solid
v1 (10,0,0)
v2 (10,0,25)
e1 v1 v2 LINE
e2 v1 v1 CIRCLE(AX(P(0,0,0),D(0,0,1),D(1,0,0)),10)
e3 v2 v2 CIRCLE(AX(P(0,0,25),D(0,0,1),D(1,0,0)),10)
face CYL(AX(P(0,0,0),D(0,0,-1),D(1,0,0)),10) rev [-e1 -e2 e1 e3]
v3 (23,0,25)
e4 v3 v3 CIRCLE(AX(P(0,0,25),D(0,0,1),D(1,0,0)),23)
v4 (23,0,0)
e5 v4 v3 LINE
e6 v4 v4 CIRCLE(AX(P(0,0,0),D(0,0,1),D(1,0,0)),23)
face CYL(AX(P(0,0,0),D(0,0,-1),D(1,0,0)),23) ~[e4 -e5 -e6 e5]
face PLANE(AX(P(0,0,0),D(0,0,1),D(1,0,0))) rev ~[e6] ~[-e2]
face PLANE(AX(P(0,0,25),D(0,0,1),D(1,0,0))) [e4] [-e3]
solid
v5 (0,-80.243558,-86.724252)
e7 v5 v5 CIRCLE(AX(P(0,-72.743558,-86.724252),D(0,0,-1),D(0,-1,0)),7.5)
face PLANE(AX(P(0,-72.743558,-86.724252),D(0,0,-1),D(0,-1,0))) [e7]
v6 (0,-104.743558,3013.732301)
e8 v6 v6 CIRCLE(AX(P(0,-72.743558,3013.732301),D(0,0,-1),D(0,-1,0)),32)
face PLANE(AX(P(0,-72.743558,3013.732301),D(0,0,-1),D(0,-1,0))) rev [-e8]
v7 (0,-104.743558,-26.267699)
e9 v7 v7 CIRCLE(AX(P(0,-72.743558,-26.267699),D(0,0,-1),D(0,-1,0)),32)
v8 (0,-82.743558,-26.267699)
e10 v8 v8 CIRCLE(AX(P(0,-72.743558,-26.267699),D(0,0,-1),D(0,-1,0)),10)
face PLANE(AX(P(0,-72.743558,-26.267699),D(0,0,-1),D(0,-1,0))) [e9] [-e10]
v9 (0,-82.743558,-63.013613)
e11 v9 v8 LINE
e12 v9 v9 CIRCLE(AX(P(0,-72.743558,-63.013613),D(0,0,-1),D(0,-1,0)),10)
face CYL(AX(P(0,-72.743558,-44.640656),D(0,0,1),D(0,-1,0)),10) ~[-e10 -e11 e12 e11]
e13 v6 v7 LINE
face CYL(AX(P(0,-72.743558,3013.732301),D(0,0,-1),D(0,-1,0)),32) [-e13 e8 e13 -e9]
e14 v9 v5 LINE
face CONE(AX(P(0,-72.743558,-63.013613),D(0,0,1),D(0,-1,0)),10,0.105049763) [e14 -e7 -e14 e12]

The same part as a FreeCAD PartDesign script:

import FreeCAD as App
import Part
import Sketcher

V = App.Vector
Q = App.Units.Quantity

doc = App.newDocument("Part")
body = doc.addObject("PartDesign::Body", "Body")

# Sketch on XY plane
sketch1 = body.newObject("Sketcher::SketchObject", "Sketch")
sketch1.AttachmentSupport = (doc.getObject("XY_Plane"), [""])
sketch1.MapMode = "FlatFace"
sketch1.addGeometry(Part.Circle(V(0, 0, 0), V(0, 0, 1), 23), False)
sketch1.addGeometry(Part.Circle(V(0, 0, 0), V(0, 0, 1), 10), False)
sketch1.addConstraint(Sketcher.Constraint("Coincident", 0, 3, -1, 1))
sketch1.addConstraint(Sketcher.Constraint("Coincident", 1, 3, -1, 1))
sketch1.addConstraint(Sketcher.Constraint("Diameter", 0, Q("46 mm")))
sketch1.addConstraint(Sketcher.Constraint("Diameter", 1, Q("20 mm")))
pad1 = body.newObject("PartDesign::Pad", "Pad")
pad1.Profile = sketch1
pad1.Length = 25
body2 = doc.addObject("PartDesign::Body", "Body001")

# Sketch on YZ plane
sketch2 = body2.newObject("Sketcher::SketchObject", "Sketch001")
sketch2.AttachmentSupport = (doc.getObject("YZ_Plane001"), [""])
sketch2.MapMode = "FlatFace"
sketch2.addGeometry(Part.LineSegment(V(-83, -26, 0), V(-83, -63, 0)), False)
sketch2.addGeometry(Part.LineSegment(V(-83, -63, 0), V(-80, -87, 0)), False)
sketch2.addGeometry(Part.LineSegment(V(-80, -87, 0), V(-73, -87, 0)), False)
sketch2.addGeometry(Part.LineSegment(V(-73, -87, 0), V(-73, 3014, 0)), False)
sketch2.addGeometry(Part.LineSegment(V(-73, 3014, 0), V(-105, 3014, 0)), False)
sketch2.addGeometry(Part.LineSegment(V(-105, 3014, 0), V(-105, -26, 0)), False)
sketch2.addGeometry(Part.LineSegment(V(-105, -26, 0), V(-83, -26, 0)), False)
sketch2.addGeometry(Part.LineSegment(V(-73, 3014, 0), V(-73, -87, 0)), True)  # axis
sketch2.addConstraint(Sketcher.Constraint("Coincident", 0, 2, 1, 1))
sketch2.addConstraint(Sketcher.Constraint("Coincident", 1, 2, 2, 1))
sketch2.addConstraint(Sketcher.Constraint("Coincident", 2, 2, 3, 1))
sketch2.addConstraint(Sketcher.Constraint("Coincident", 3, 2, 4, 1))
sketch2.addConstraint(Sketcher.Constraint("Coincident", 4, 2, 5, 1))
sketch2.addConstraint(Sketcher.Constraint("Coincident", 5, 2, 6, 1))
sketch2.addConstraint(Sketcher.Constraint("Coincident", 6, 2, 0, 1))
sketch2.addConstraint(Sketcher.Constraint("Vertical", 0))
sketch2.addConstraint(Sketcher.Constraint("Horizontal", 2))
sketch2.addConstraint(Sketcher.Constraint("Vertical", 3))
sketch2.addConstraint(Sketcher.Constraint("Horizontal", 4))
sketch2.addConstraint(Sketcher.Constraint("Vertical", 5))
sketch2.addConstraint(Sketcher.Constraint("Horizontal", 6))
sketch2.addConstraint(Sketcher.Constraint("Vertical", 7))
sketch2.addConstraint(Sketcher.Constraint("Coincident", 7, 1, 3, 2))
sketch2.addConstraint(Sketcher.Constraint("Horizontal", 1, 2, 7, 2))
sketch2.addConstraint(Sketcher.Constraint("DistanceX", 4, 2, 4, 1, Q("32 mm")))
sketch2.addConstraint(Sketcher.Constraint("DistanceX", 6, 1, 6, 2, Q("22 mm")))
sketch2.addConstraint(Sketcher.Constraint("DistanceY", 5, 2, 5, 1, Q("3040 mm")))
sketch2.addConstraint(Sketcher.Constraint("DistanceX", 2, 1, 2, 2, Q("7.5 mm")))
sketch2.addConstraint(Sketcher.Constraint("DistanceY", -1, 1, 3, 2, Q("3013.732301 mm")))
sketch2.addConstraint(Sketcher.Constraint("DistanceY", 0, 2, 0, 1, Q("36.745914 mm")))
sketch2.addConstraint(Sketcher.Constraint("DistanceY", 3, 1, 3, 2, Q("3100.456553 mm")))
sketch2.addConstraint(Sketcher.Constraint("DistanceX", 0, 2, -1, 1, Q("82.743558 mm")))
revolution = body2.newObject("PartDesign::Revolution", "Revolution")
revolution.Profile = sketch2
revolution.ReferenceAxis = (sketch2, ["Axis0"])
revolution.Angle = 360

doc.recompute()
